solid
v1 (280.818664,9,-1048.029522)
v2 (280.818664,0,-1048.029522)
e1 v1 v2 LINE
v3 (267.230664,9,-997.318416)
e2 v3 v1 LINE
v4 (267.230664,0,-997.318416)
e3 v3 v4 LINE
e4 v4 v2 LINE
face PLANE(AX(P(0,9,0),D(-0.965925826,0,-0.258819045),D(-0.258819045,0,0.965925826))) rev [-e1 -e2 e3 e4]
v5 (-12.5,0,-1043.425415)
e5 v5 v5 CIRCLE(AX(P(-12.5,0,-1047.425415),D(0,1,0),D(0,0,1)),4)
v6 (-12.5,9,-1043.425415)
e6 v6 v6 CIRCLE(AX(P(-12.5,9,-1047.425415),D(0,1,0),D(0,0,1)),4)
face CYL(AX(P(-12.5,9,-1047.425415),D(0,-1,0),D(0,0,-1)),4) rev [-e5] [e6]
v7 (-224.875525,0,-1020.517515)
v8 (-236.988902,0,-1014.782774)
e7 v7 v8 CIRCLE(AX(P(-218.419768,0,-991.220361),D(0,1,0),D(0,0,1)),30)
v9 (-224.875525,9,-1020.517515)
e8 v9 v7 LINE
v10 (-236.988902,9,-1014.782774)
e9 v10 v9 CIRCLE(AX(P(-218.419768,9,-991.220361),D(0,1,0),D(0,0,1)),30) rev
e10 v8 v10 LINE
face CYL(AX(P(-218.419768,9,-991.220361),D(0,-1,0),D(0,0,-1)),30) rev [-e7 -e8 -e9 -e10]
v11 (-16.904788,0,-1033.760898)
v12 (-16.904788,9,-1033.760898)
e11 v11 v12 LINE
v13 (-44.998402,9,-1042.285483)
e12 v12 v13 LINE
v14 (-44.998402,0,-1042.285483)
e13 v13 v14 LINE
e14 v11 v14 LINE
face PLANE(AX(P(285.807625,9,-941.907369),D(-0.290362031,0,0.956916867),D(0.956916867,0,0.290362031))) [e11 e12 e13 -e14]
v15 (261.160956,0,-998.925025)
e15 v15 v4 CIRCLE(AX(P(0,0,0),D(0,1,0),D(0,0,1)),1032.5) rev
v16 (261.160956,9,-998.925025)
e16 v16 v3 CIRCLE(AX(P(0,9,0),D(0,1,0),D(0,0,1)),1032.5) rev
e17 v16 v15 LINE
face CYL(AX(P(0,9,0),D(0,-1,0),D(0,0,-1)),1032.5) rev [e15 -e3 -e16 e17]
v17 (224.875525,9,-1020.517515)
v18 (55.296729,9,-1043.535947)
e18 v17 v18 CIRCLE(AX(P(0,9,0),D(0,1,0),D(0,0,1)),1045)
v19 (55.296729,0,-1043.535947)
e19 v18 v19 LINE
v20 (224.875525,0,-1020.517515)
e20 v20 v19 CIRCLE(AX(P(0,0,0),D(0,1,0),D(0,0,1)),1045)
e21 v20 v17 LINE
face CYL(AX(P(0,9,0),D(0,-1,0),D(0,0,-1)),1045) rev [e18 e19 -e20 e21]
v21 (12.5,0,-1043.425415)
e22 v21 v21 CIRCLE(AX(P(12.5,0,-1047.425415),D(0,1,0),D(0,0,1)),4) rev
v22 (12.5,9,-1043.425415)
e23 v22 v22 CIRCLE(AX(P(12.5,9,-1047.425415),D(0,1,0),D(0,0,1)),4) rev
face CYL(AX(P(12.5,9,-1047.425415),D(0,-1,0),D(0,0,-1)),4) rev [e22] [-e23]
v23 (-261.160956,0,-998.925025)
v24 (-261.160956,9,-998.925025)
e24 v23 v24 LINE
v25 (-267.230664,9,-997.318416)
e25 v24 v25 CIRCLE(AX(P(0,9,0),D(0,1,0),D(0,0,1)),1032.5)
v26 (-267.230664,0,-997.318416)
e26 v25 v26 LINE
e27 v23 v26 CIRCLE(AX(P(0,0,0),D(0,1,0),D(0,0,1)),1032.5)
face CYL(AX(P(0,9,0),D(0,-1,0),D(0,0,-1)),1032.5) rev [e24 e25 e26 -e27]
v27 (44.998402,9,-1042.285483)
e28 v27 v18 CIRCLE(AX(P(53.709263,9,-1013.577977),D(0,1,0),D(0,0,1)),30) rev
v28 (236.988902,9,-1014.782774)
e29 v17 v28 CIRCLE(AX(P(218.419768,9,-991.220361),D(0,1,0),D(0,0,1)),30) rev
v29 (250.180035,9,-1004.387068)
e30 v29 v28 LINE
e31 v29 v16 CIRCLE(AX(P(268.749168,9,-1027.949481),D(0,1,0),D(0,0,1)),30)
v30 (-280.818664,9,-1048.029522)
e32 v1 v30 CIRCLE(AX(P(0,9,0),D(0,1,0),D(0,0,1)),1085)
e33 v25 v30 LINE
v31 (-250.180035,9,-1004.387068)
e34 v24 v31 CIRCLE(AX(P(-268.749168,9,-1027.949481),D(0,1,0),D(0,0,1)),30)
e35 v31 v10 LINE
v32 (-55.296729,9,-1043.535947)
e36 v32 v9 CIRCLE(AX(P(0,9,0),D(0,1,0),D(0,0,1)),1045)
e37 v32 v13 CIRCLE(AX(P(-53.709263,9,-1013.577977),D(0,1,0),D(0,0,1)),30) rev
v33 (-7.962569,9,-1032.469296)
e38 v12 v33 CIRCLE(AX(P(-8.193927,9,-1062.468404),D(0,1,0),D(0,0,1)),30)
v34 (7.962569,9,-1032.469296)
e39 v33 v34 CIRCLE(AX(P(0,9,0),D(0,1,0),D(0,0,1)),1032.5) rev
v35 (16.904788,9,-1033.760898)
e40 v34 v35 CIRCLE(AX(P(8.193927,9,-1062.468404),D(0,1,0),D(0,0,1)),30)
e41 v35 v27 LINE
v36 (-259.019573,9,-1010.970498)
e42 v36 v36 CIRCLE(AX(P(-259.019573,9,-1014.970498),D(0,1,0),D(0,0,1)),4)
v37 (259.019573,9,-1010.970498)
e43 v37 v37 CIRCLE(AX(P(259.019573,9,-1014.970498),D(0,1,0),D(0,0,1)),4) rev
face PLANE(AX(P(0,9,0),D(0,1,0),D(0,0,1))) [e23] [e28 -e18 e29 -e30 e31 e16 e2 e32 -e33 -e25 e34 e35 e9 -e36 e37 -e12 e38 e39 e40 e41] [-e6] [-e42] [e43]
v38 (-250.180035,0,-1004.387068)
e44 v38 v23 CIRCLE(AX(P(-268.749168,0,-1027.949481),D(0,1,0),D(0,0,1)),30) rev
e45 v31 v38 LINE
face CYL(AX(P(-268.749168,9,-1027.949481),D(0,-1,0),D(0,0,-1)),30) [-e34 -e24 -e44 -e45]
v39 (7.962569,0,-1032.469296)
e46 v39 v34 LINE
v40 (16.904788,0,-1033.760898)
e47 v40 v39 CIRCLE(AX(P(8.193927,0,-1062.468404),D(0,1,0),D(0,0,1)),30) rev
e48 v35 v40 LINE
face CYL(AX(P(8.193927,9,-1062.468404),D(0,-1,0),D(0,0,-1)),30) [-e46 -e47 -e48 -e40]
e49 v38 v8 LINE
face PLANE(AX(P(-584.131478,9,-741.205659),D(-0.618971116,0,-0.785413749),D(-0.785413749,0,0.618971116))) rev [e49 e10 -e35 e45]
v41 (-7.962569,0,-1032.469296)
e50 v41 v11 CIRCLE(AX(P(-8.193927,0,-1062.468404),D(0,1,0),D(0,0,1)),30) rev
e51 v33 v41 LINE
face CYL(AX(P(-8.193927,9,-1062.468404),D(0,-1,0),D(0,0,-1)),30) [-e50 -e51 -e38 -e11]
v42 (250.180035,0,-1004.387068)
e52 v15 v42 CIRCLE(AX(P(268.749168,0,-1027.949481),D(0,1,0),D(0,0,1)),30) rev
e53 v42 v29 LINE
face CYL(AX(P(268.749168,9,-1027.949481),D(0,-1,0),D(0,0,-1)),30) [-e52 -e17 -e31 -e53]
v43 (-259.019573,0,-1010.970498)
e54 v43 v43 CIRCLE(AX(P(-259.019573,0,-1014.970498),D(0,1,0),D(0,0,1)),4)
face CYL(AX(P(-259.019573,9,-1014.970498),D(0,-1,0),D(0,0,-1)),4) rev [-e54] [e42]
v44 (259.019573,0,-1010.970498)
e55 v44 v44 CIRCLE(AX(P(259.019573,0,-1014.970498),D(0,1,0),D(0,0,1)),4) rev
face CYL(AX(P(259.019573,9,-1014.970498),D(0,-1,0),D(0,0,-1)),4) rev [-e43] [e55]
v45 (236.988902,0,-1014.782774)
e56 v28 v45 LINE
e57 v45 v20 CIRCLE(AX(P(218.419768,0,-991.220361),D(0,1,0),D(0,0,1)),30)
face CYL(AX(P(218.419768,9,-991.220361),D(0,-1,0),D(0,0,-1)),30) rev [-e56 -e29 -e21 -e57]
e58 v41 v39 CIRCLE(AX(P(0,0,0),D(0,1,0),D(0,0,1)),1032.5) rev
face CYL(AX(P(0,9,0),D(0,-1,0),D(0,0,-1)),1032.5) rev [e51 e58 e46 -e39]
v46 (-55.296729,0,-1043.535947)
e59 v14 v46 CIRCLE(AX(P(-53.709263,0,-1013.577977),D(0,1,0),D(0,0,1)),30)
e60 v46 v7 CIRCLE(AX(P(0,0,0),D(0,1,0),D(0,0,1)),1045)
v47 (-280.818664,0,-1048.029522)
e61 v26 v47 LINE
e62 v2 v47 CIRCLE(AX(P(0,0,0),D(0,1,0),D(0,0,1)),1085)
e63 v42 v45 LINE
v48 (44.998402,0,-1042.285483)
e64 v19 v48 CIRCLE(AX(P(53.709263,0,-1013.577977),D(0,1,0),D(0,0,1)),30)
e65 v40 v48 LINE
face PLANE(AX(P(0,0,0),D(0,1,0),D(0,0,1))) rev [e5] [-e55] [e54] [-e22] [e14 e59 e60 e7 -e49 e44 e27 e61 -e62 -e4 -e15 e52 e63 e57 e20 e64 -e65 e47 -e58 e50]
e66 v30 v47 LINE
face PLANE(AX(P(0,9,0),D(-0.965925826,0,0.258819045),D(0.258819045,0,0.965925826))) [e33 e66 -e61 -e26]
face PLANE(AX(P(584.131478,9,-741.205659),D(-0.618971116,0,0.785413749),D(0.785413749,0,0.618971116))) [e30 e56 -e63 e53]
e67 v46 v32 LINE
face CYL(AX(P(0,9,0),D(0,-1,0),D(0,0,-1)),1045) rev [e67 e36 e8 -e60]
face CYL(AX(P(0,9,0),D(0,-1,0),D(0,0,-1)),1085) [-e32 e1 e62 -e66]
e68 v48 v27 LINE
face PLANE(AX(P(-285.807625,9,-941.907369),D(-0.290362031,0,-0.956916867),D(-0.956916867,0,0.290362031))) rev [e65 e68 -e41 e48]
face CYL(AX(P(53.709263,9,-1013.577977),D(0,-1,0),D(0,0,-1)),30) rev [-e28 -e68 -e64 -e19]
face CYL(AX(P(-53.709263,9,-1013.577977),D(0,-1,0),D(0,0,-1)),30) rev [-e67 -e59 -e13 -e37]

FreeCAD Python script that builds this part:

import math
import FreeCAD as App
import Part
import Sketcher
Q = App.Units.Quantity


def edges_at(feature, points):
    """Names of the edges that pass closest to the given points."""
    edges = feature.Shape.Edges
    near = lambda p: min(range(len(edges)), key=lambda i: edges[i].distToShape(Part.Vertex(*p))[0])
    return sorted({f"Edge{near(p) + 1}" for p in points})

doc = App.newDocument("Part")
body = doc.addObject("PartDesign::Body", "Body")

# Sketch on XZ plane
sketch1 = body.newObject("Sketcher::SketchObject", "Sketch")
sketch1.AttachmentSupport = (doc.getObject("XZ_Plane"), [""])
sketch1.MapMode = "FlatFace"
sketch1.addGeometry([
    Part.ArcOfCircle(Part.Circle(App.Vector(-0.000008, -0.000031, 0), App.Vector(0, 0, 1), 1032.499968), math.radians(-105), math.radians(-104.30633)),  # 0
    Part.LineSegment(App.Vector(-255.137007, -1000.480563, 0), App.Vector(-231.630657, -1019.005514, 0)),  # 1
    Part.ArcOfCircle(Part.Circle(App.Vector(0, 0, 0), App.Vector(0, 0, 1), 1045), math.radians(-102.806324), math.radians(-92.742472)),  # 2
    Part.LineSegment(App.Vector(-50, -1043.803142, 0), App.Vector(-12.5, -1032.424331, 0)),  # 3
    Part.ArcOfCircle(Part.Circle(App.Vector(0, 0.000004, 0), App.Vector(0, 0, 1), 1032.500004), math.radians(-90.69367), math.radians(-89.30633)),  # 4
    Part.LineSegment(App.Vector(12.5, -1032.424331, 0), App.Vector(50, -1043.803142, 0)),  # 5
    Part.ArcOfCircle(Part.Circle(App.Vector(0, 0, 0), App.Vector(0, 0, 1), 1045), math.radians(-87.257528), math.radians(-77.193676)),  # 6
    Part.LineSegment(App.Vector(231.630657, -1019.005514, 0), App.Vector(255.137007, -1000.480563, 0)),  # 7
    Part.ArcOfCircle(Part.Circle(App.Vector(0.000008, -0.000031, 0), App.Vector(0, 0, 1), 1032.499968), math.radians(-75.69367), math.radians(-75)),  # 8
    Part.LineSegment(App.Vector(267.230664, -997.318416, 0), App.Vector(280.818664, -1048.029522, 0)),  # 9
    Part.ArcOfCircle(Part.Circle(App.Vector(0, 0, 0), App.Vector(0, 0, 1), 1085), math.radians(-105), math.radians(-75)),  # 10
    Part.LineSegment(App.Vector(-280.818664, -1048.029522, 0), App.Vector(-267.230664, -997.318416, 0)),  # 11
    Part.Circle(App.Vector(-259.019573, -1014.970498, 0), App.Vector(0, 0, 1), 4),  # 12
    Part.Circle(App.Vector(259.019573, -1014.970498, 0), App.Vector(0, 0, 1), 4),  # 13
    Part.Circle(App.Vector(-12.5, -1047.425415, 0), App.Vector(0, 0, 1), 4),  # 14
    Part.Circle(App.Vector(12.5, -1047.425415, 0), App.Vector(0, 0, 1), 4),  # 15
], False)
sketch1.addConstraint([
    Sketcher.Constraint("Coincident", 0, 2, 1, 1),
    Sketcher.Constraint("Coincident", 1, 2, 2, 1),
    Sketcher.Constraint("Coincident", 2, 2, 3, 1),
    Sketcher.Constraint("Coincident", 3, 2, 4, 1),
    Sketcher.Constraint("Coincident", 4, 2, 5, 1),
    Sketcher.Constraint("Coincident", 5, 2, 6, 1),
    Sketcher.Constraint("Coincident", 6, 2, 7, 1),
    Sketcher.Constraint("Coincident", 7, 2, 8, 1),
    Sketcher.Constraint("Coincident", 8, 2, 9, 1),
    Sketcher.Constraint("Coincident", 9, 2, 10, 2),
    Sketcher.Constraint("Coincident", 10, 1, 11, 1),
    Sketcher.Constraint("Coincident", 11, 2, 0, 1),
    Sketcher.Constraint("Coincident", 2, 3, -1, 1),
    Sketcher.Constraint("Coincident", 4, 3, -1, 1),
    Sketcher.Constraint("Coincident", 6, 3, -1, 1),
    Sketcher.Constraint("Coincident", 10, 3, -1, 1),
    Sketcher.Constraint("Equal", 2, 6),
    Sketcher.Constraint("Equal", 0, 8),
    Sketcher.Constraint("Equal", 12, 13),
    Sketcher.Constraint("Equal", 13, 14),
    Sketcher.Constraint("Equal", 14, 15),
    Sketcher.Constraint("Symmetric", 0, 3, 8, 3, -2),
    Sketcher.Constraint("Symmetric", 12, 3, 13, 3, -2),
    Sketcher.Constraint("Symmetric", 14, 3, 15, 3, -2),
    Sketcher.Constraint("Vertical", 14, 3, 3, 2),
    Sketcher.Constraint("Equal", 3, 5),
    Sketcher.Constraint("Equal", 1, 7),
    Sketcher.Constraint("Diameter", 12, 8.0),
    Sketcher.Constraint("Radius", 2, 1045.0),
    Sketcher.Constraint("Radius", 10, 1085.0),
    Sketcher.Constraint("Angle", 9, Q("-75 deg")),
    Sketcher.Constraint("Angle", 11, Q("75 deg")),
    Sketcher.Constraint("DistanceX", -1, 1, 5, 2, 50.0),
    Sketcher.Constraint("DistanceX", 14, 3, 15, 3, 25.0),
    Sketcher.Constraint("Distance", 9, 52.5),
    Sketcher.Constraint("Radius", 0, 1032.499968),
    Sketcher.Constraint("Radius", 4, 1032.500004),
    Sketcher.Constraint("DistanceY", 14, 3, 1, 2, 28.419901),
    Sketcher.Constraint("DistanceY", 1, 2, 11, 2, 21.687099),
    Sketcher.Constraint("Distance", 1, 29.92862),
    Sketcher.Constraint("DistanceY", 9, 2, -1, 1, 1048.029522),
    Sketcher.Constraint("DistanceX", 12, 3, 8, 3, 259.019581),
    Sketcher.Constraint("DistanceX", 1, 2, 13, 3, 490.65023),
    Sketcher.Constraint("DistanceY", 5, 2, 7, 2, 43.322579),
    Sketcher.Constraint("DistanceY", 15, 3, 7, 2, 46.944852),
    Sketcher.Constraint("DistanceY", 13, 3, 8, 2, 17.652082),
    Sketcher.Constraint("Distance", 3, 39.188357),
])
pad1 = body.newObject("PartDesign::Pad", "Pad")
pad1.Profile = sketch1
pad1.Length = 9
pad1.Reversed = True
doc.recompute()

fillet = body.newObject("PartDesign::Fillet", "Fillet")
fillet.Base = (pad1, edges_at(pad1, [
    (50, 4.5, -1043.803),
    (12.5, 4.5, -1032.424),
    (-12.5, 4.5, -1032.424),
    (-50, 4.5, -1043.803),
    (-231.631, 4.5, -1019.006),
    (-255.137, 4.5, -1000.481),
    (255.137, 4.5, -1000.481),
    (231.631, 4.5, -1019.006),
]))
fillet.Radius = 30

doc.recompute()
